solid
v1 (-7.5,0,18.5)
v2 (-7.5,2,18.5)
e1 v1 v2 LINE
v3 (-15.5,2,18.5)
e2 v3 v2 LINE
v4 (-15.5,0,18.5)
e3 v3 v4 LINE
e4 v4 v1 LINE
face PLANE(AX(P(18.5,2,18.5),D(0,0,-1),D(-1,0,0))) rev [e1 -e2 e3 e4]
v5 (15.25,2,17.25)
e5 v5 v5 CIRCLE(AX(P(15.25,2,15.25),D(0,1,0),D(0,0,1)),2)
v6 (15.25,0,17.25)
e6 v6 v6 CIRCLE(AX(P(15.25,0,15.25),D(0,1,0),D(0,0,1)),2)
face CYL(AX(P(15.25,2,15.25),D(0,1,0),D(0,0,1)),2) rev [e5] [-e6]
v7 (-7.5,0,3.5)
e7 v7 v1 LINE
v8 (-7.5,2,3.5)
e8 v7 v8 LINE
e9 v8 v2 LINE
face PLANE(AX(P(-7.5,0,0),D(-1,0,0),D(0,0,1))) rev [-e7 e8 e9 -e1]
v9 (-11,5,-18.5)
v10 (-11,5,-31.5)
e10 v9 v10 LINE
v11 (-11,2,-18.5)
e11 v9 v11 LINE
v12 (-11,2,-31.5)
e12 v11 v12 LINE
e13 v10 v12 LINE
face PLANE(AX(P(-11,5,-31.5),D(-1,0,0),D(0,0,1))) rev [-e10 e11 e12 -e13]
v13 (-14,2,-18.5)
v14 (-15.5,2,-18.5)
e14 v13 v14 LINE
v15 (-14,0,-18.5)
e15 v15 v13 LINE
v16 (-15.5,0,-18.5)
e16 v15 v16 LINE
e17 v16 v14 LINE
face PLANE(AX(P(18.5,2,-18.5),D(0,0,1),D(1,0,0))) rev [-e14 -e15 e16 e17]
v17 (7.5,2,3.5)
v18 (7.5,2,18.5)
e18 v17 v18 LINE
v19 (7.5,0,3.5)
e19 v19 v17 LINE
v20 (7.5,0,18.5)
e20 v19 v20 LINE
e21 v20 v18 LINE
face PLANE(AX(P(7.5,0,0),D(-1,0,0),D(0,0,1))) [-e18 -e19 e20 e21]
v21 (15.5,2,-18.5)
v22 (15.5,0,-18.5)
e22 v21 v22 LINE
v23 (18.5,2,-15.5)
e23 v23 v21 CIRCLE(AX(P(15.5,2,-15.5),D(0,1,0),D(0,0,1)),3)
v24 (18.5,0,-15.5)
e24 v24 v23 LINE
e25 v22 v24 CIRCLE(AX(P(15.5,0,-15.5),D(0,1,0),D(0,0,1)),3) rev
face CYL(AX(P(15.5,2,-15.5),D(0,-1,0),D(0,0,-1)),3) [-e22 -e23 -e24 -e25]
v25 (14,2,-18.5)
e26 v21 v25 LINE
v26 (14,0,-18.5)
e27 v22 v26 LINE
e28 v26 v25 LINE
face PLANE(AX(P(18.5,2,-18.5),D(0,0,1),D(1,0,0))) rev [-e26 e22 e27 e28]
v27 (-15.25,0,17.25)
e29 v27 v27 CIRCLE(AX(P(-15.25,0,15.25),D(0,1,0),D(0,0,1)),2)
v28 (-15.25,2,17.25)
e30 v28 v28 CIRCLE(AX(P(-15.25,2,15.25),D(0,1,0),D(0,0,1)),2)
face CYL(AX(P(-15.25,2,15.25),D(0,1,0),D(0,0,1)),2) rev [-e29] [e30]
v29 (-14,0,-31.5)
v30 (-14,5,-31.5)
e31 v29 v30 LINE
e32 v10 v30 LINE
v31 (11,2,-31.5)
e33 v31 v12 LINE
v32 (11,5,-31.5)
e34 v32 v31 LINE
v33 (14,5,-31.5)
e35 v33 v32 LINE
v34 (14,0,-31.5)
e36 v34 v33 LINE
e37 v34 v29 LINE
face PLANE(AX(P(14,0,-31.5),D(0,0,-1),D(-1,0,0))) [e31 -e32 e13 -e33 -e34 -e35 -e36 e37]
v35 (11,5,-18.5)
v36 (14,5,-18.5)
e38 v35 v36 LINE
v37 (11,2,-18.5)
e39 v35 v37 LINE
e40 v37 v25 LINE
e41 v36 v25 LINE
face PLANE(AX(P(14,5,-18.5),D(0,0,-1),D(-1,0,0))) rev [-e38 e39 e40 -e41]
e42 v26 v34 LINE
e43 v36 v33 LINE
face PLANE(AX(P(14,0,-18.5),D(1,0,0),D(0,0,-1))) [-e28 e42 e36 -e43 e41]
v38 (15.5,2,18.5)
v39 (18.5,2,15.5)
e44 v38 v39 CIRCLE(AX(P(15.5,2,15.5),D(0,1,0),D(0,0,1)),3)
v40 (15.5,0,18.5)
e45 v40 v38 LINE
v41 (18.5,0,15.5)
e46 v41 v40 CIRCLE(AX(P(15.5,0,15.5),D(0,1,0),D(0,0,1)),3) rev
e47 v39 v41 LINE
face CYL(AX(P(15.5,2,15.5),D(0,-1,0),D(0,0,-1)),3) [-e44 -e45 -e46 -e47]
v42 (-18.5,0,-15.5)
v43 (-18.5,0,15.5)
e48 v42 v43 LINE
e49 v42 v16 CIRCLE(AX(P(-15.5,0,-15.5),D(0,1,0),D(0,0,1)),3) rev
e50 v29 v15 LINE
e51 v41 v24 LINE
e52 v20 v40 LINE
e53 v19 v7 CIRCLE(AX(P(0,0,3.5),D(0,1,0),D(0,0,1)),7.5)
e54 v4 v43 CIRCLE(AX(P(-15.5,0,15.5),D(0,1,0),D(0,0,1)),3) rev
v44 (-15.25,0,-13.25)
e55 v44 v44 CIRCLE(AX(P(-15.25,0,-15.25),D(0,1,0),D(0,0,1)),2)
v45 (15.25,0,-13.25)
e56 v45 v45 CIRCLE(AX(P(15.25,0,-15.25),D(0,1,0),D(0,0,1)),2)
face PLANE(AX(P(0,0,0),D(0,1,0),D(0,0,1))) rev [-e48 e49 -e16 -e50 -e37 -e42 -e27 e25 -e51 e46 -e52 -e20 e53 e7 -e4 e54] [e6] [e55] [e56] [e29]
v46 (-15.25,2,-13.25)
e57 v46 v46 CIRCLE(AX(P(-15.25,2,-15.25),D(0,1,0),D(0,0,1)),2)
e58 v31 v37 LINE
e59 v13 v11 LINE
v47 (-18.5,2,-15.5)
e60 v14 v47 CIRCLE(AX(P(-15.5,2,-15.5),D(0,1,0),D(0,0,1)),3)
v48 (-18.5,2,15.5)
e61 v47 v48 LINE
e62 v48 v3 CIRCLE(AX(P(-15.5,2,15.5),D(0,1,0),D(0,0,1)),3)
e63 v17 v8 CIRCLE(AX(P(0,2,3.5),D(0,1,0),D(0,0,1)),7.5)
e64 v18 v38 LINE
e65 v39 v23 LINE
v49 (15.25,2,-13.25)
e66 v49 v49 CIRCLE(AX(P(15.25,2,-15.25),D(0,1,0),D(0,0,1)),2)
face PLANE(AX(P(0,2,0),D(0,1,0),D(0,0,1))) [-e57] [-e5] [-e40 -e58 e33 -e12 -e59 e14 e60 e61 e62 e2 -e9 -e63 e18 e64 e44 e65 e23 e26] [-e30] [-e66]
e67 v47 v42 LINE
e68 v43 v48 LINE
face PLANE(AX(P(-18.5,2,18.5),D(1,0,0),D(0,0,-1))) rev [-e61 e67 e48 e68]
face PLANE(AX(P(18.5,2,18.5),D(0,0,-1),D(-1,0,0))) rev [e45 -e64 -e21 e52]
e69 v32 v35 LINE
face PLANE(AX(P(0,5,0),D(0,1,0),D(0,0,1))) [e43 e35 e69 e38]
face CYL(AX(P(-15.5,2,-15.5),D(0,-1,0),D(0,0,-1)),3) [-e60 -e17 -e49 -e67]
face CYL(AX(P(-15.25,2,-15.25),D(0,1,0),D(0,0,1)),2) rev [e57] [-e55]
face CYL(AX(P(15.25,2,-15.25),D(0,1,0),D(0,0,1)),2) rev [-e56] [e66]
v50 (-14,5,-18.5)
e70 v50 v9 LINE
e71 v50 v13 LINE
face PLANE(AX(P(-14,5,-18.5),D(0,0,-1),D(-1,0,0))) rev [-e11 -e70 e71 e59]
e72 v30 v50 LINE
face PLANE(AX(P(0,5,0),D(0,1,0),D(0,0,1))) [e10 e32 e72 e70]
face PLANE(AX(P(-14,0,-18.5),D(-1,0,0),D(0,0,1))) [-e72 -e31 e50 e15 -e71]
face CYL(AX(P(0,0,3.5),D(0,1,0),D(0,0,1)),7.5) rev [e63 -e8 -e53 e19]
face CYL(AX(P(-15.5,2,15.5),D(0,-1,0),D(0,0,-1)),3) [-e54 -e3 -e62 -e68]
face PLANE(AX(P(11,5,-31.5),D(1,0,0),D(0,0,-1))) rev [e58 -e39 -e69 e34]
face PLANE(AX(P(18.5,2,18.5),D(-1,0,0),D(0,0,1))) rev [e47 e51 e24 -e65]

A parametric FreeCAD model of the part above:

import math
import FreeCAD as App
import Part
import Sketcher


def edges_at(feature, points):
    """Names of the edges that pass closest to the given points."""
    edges = feature.Shape.Edges
    near = lambda p: min(range(len(edges)), key=lambda i: edges[i].distToShape(Part.Vertex(*p))[0])
    return sorted({f"Edge{near(p) + 1}" for p in points})

doc = App.newDocument("Part")
body = doc.addObject("PartDesign::Body", "Body")

# Sketch on XZ plane
sketch1 = body.newObject("Sketcher::SketchObject", "Sketch")
sketch1.AttachmentSupport = (doc.getObject("XZ_Plane"), [""])
sketch1.MapMode = "FlatFace"
sketch1.addGeometry([
    Part.LineSegment(App.Vector(-18, -18, 0), App.Vector(-18, 18, 0)),
    Part.LineSegment(App.Vector(-18, 18, 0), App.Vector(18, 18, 0)),
    Part.LineSegment(App.Vector(18, 18, 0), App.Vector(18, -18, 0)),
    Part.LineSegment(App.Vector(18, -18, 0), App.Vector(-18, -18, 0)),
], False)
sketch1.addConstraint([
    Sketcher.Constraint("Coincident", 0, 2, 1, 1),
    Sketcher.Constraint("Coincident", 1, 2, 2, 1),
    Sketcher.Constraint("Coincident", 2, 2, 3, 1),
    Sketcher.Constraint("Coincident", 3, 2, 0, 1),
    Sketcher.Constraint("Vertical", 0),
    Sketcher.Constraint("Horizontal", 1),
    Sketcher.Constraint("Vertical", 2),
    Sketcher.Constraint("Horizontal", 3),
    Sketcher.Constraint("Symmetric", 0, 2, 2, 2, -1, 1),
    Sketcher.Constraint("Equal", 3, 0),
    Sketcher.Constraint("DistanceX", 1, 1, 1, 2, 37.0),
])
pad1 = body.newObject("PartDesign::Pad", "Pad")
pad1.Profile = sketch1
pad1.Length = 2
pad1.Reversed = True
doc.recompute()

fillet = body.newObject("PartDesign::Fillet", "Fillet")
fillet.Base = (pad1, edges_at(pad1, [
    (-18.5, 1, -18.5),
    (18.5, 1, -18.5),
    (18.5, 1, 18.5),
    (-18.5, 1, 18.5),
]))
fillet.Radius = 3

# Sketch on XZ plane
sketch2 = body.newObject("Sketcher::SketchObject", "Sketch001")
sketch2.AttachmentSupport = (doc.getObject("XZ_Plane"), [""])
sketch2.MapMode = "FlatFace"
sketch2.AttachmentOffset = App.Placement(App.Vector(0, 0, -2), App.Rotation())
sketch2.addGeometry([
    Part.Circle(App.Vector(-15.2, -15.2, 0), App.Vector(0, 0, 1), 2),
    Part.Circle(App.Vector(15.2, 15.2, 0), App.Vector(0, 0, 1), 2),
    Part.Circle(App.Vector(15.2, -15.2, 0), App.Vector(0, 0, 1), 2),
    Part.Circle(App.Vector(-15.2, 15.2, 0), App.Vector(0, 0, 1), 2),
], False)
sketch2.addConstraint([
    Sketcher.Constraint("Equal", 0, 1),
    Sketcher.Constraint("Equal", 1, 2),
    Sketcher.Constraint("Equal", 2, 3),
    Sketcher.Constraint("Symmetric", 0, 3, 1, 3, -1, 1),
    Sketcher.Constraint("Symmetric", 2, 3, 3, 3, -1, 1),
    Sketcher.Constraint("Symmetric", 0, 3, 2, 3, -2),
    Sketcher.Constraint("Diameter", 0, 4.0),
    Sketcher.Constraint("DistanceX", 0, 3, 1, 3, 30.5),
    Sketcher.Constraint("DistanceY", 0, 3, 1, 3, 30.5),
])
doc.recompute()
hole = body.newObject("PartDesign::Hole", "Hole")
hole.Profile = sketch2
hole.ThreadType = "None"
hole.Diameter = 4
hole.DepthType = "ThroughAll"
hole.Reversed = True

# Sketch on XZ plane
sketch3 = body.newObject("Sketcher::SketchObject", "Sketch002")
sketch3.AttachmentSupport = (doc.getObject("XZ_Plane"), [""])
sketch3.MapMode = "FlatFace"
sketch3.AttachmentOffset = App.Placement(App.Vector(0, 0, -2), App.Rotation())
sketch3.addGeometry([
    Part.LineSegment(App.Vector(-14, -32, 0), App.Vector(-14, -18, 0)),
    Part.LineSegment(App.Vector(-14, -18, 0), App.Vector(14, -18, 0)),
    Part.LineSegment(App.Vector(14, -18, 0), App.Vector(14, -32, 0)),
    Part.LineSegment(App.Vector(14, -32, 0), App.Vector(-14, -32, 0)),
], False)
sketch3.addConstraint([
    Sketcher.Constraint("Coincident", 0, 2, 1, 1),
    Sketcher.Constraint("Coincident", 1, 2, 2, 1),
    Sketcher.Constraint("Coincident", 2, 2, 3, 1),
    Sketcher.Constraint("Coincident", 3, 2, 0, 1),
    Sketcher.Constraint("Vertical", 0),
    Sketcher.Constraint("Horizontal", 1),
    Sketcher.Constraint("Vertical", 2),
    Sketcher.Constraint("Horizontal", 3),
    Sketcher.Constraint("DistanceX", 1, 1, 1, 2, 28.0),
    Sketcher.Constraint("DistanceY", 0, 1, 0, 2, 13.0),
    Sketcher.Constraint("DistanceX", 0, 2, -1, 1, 14.0),
    Sketcher.Constraint("DistanceY", 0, 2, -1, 1, 18.5),
])
pad2 = body.newObject("PartDesign::Pad", "Pad001")
pad2.Profile = sketch3
pad2.Length = 2

# Sketch on XZ plane
sketch4 = body.newObject("Sketcher::SketchObject", "Sketch003")
sketch4.AttachmentSupport = (doc.getObject("XZ_Plane"), [""])
sketch4.MapMode = "FlatFace"
sketch4.AttachmentOffset = App.Placement(App.Vector(0, 0, -2), App.Rotation())
sketch4.addGeometry([
    Part.LineSegment(App.Vector(-14, -31.5, 0), App.Vector(-14, -18.5, 0)),  # 0
    Part.LineSegment(App.Vector(-14, -18.5, 0), App.Vector(-11, -18.5, 0)),  # 1
    Part.LineSegment(App.Vector(-11, -18.5, 0), App.Vector(-11, -31.5, 0)),  # 2
    Part.LineSegment(App.Vector(-11, -31.5, 0), App.Vector(-14, -31.5, 0)),  # 3
    Part.LineSegment(App.Vector(11, -31.5, 0), App.Vector(11, -18.5, 0)),  # 4
    Part.LineSegment(App.Vector(11, -18.5, 0), App.Vector(14, -18.5, 0)),  # 5
    Part.LineSegment(App.Vector(14, -18.5, 0), App.Vector(14, -31.5, 0)),  # 6
    Part.LineSegment(App.Vector(14, -31.5, 0), App.Vector(11, -31.5, 0)),  # 7
], False)
sketch4.addConstraint([
    Sketcher.Constraint("Coincident", 0, 2, 1, 1),
    Sketcher.Constraint("Coincident", 1, 2, 2, 1),
    Sketcher.Constraint("Coincident", 2, 2, 3, 1),
    Sketcher.Constraint("Coincident", 3, 2, 0, 1),
    Sketcher.Constraint("Coincident", 4, 2, 5, 1),
    Sketcher.Constraint("Coincident", 5, 2, 6, 1),
    Sketcher.Constraint("Coincident", 6, 2, 7, 1),
    Sketcher.Constraint("Coincident", 7, 2, 4, 1),
    Sketcher.Constraint("Vertical", 0),
    Sketcher.Constraint("Horizontal", 1),
    Sketcher.Constraint("Vertical", 2),
    Sketcher.Constraint("Horizontal", 3),
    Sketcher.Constraint("Vertical", 4),
    Sketcher.Constraint("Horizontal", 5),
    Sketcher.Constraint("Vertical", 6),
    Sketcher.Constraint("Horizontal", 7),
    Sketcher.Constraint("Symmetric", 1, 2, 4, 2, -2),
    Sketcher.Constraint("Symmetric", 3, 2, 6, 2, -2),
    Sketcher.Constraint("DistanceX", 1, 1, 1, 2, 3.0),
    Sketcher.Constraint("DistanceY", 0, 1, 0, 2, 13.0),
    Sketcher.Constraint("DistanceX", 0, 2, -1, 1, 14.0),
    Sketcher.Constraint("DistanceY", 0, 2, -1, 1, 18.5),
])
pad3 = body.newObject("PartDesign::Pad", "Pad002")
pad3.Profile = sketch4
pad3.Length = 3
pad3.Reversed = True

# Sketch on XZ plane
sketch5 = body.newObject("Sketcher::SketchObject", "Sketch004")
sketch5.AttachmentSupport = (doc.getObject("XZ_Plane"), [""])
sketch5.MapMode = "FlatFace"
sketch5.AttachmentOffset = App.Placement(App.Vector(0, 0, -2), App.Rotation())
sketch5.addGeometry([
    Part.ArcOfCircle(Part.Circle(App.Vector(0, 4, 0), App.Vector(0, 0, 1), 8), math.radians(180), math.radians(360)),
    Part.LineSegment(App.Vector(-8, 4, 0), App.Vector(-8, 18, 0)),
    Part.LineSegment(App.Vector(-8, 18, 0), App.Vector(8, 18, 0)),
    Part.LineSegment(App.Vector(8, 18, 0), App.Vector(8, 4, 0)),
], False)
sketch5.addConstraint([
    Sketcher.Constraint("Tangent", 0, 1, 1, 1),
    Sketcher.Constraint("Coincident", 1, 2, 2, 1),
    Sketcher.Constraint("Coincident", 2, 2, 3, 1),
    Sketcher.Constraint("Tangent", 3, 2, 0, 2),
    Sketcher.Constraint("Vertical", 1),
    Sketcher.Constraint("Horizontal", 2),
    Sketcher.Constraint("Vertical", 3),
    Sketcher.Constraint("PointOnObject", 0, 3, -2),
    Sketcher.Constraint("Equal", 2, 1),
    Sketcher.Constraint("Radius", 0, 7.5),
    Sketcher.Constraint("DistanceY", -1, 1, 0, 3, 3.5),
])
pocket1 = body.newObject("PartDesign::Pocket", "Pocket")
pocket1.Profile = sketch5
pocket1.Type = "ThroughAll"
pocket1.Reversed = True

doc.recompute()
